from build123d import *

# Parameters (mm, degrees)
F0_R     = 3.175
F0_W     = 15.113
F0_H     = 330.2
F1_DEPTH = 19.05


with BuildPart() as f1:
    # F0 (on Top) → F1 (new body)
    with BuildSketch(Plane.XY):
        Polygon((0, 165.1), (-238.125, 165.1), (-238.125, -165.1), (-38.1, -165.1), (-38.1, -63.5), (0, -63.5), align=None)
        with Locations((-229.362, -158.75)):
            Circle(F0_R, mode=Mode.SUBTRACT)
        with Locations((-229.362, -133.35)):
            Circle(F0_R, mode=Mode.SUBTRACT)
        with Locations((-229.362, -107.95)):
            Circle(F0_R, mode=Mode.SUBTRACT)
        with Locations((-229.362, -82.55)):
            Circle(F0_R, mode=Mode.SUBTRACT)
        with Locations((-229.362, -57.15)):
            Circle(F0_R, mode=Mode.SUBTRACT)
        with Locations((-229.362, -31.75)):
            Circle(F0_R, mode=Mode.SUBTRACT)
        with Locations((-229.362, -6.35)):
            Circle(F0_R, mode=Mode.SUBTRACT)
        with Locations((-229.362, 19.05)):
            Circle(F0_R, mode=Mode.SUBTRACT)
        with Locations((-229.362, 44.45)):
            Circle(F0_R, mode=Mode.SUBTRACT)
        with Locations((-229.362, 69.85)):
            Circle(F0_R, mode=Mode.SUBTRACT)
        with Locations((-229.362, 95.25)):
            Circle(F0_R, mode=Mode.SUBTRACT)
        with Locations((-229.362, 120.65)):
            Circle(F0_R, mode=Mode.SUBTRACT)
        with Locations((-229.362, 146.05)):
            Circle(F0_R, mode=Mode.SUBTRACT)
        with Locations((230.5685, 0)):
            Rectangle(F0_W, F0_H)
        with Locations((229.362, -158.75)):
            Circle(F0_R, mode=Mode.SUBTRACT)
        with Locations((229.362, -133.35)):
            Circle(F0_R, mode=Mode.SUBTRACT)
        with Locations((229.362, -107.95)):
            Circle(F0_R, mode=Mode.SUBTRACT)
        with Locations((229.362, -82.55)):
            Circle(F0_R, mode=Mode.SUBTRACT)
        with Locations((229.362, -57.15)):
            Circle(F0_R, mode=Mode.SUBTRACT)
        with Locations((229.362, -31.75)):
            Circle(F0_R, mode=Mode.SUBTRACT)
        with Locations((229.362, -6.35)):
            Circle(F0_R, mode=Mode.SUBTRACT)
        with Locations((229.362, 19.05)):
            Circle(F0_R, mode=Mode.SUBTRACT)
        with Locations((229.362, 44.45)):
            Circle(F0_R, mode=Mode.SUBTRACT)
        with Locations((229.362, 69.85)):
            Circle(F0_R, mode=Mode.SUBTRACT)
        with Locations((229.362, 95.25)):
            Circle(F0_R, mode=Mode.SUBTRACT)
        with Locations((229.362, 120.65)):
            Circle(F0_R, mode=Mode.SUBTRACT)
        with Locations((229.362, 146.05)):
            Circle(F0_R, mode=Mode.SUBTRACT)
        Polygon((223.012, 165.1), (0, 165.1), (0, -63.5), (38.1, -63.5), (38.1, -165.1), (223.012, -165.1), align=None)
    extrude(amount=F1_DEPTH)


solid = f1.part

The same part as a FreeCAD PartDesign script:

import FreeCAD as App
import Part
import Sketcher
from FreeCAD import Vector
Q = App.Units.Quantity


def add_polygon(sketch, points):
    """Adds a closed chain of lines whose ends are joined by coincident constraints."""
    first, n = sketch.GeometryCount, len(points)
    for a, b in zip(points, points[1:] + points[:1]):
        sketch.addGeometry(Part.LineSegment(App.Vector(*a, 0), App.Vector(*b, 0)), False)
    for i in range(n):
        sketch.addConstraint(Sketcher.Constraint("Coincident", first + i, 2, first + (i + 1) % n, 1))

doc = App.newDocument("Part")
params = doc.addObject("Spreadsheet::Sheet", "Params")
for row, (alias, value) in enumerate([
    ("sketch1_diameter", "0.25 in"),
    ("sketch1_width", "3 in"),
    ("sketch1_height", "13 in"),
    ("sketch1_height2", "4 in"),
    ("sketch1_width2", "18.75 in"),
    ("pad1_length", "0.75 in"),
], start=1):
    params.set(f"A{row}", alias)
    params.set(f"B{row}", "=" + value)
    params.setAlias(f"B{row}", alias)

body = doc.addObject("PartDesign::Body", "Body")

sketch1 = body.newObject("Sketcher::SketchObject", "Sketch")
sketch1.AttachmentSupport = (doc.getObject("XY_Plane"), [""])
sketch1.MapMode = "FlatFace"
add_polygon(sketch1, [(-238.125, 165.1), (-238.125, -165.1), (-38.1, -165.1), (-38.1, -63.5), (38.1, -63.5), (38.1, -165.1), (238.125, -165.1), (238.125, 165.1)])
sketch1.addGeometry(Part.Circle(Vector(-229.362, -158.75, 0), Vector(0, 0, 1), 3.175), False)
sketch1.addGeometry(Part.Circle(Vector(-229.362, -133.35, 0), Vector(0, 0, 1), 3.175), False)
sketch1.addGeometry(Part.Circle(Vector(-229.362, -107.95, 0), Vector(0, 0, 1), 3.175), False)
sketch1.addGeometry(Part.Circle(Vector(-229.362, -82.55, 0), Vector(0, 0, 1), 3.175), False)
sketch1.addGeometry(Part.Circle(Vector(-229.362, -57.15, 0), Vector(0, 0, 1), 3.175), False)
sketch1.addGeometry(Part.Circle(Vector(-229.362, -31.75, 0), Vector(0, 0, 1), 3.175), False)
sketch1.addGeometry(Part.Circle(Vector(-229.362, -6.35, 0), Vector(0, 0, 1), 3.175), False)
sketch1.addGeometry(Part.Circle(Vector(-229.362, 19.05, 0), Vector(0, 0, 1), 3.175), False)
sketch1.addGeometry(Part.Circle(Vector(-229.362, 44.45, 0), Vector(0, 0, 1), 3.175), False)
sketch1.addGeometry(Part.Circle(Vector(-229.362, 69.85, 0), Vector(0, 0, 1), 3.175), False)
sketch1.addGeometry(Part.Circle(Vector(-229.362, 95.25, 0), Vector(0, 0, 1), 3.175), False)
sketch1.addGeometry(Part.Circle(Vector(-229.362, 120.65, 0), Vector(0, 0, 1), 3.175), False)
sketch1.addGeometry(Part.Circle(Vector(-229.362, 146.05, 0), Vector(0, 0, 1), 3.175), False)
sketch1.addGeometry(Part.Circle(Vector(229.362, 146.05, 0), Vector(0, 0, 1), 3.175), False)
sketch1.addGeometry(Part.Circle(Vector(229.362, -158.75, 0), Vector(0, 0, 1), 3.175), False)
sketch1.addGeometry(Part.Circle(Vector(229.362, -133.35, 0), Vector(0, 0, 1), 3.175), False)
sketch1.addGeometry(Part.Circle(Vector(229.362, -107.95, 0), Vector(0, 0, 1), 3.175), False)
sketch1.addGeometry(Part.Circle(Vector(229.362, -82.55, 0), Vector(0, 0, 1), 3.175), False)
sketch1.addGeometry(Part.Circle(Vector(229.362, -57.15, 0), Vector(0, 0, 1), 3.175), False)
sketch1.addGeometry(Part.Circle(Vector(229.362, -31.75, 0), Vector(0, 0, 1), 3.175), False)
sketch1.addGeometry(Part.Circle(Vector(229.362, -6.35, 0), Vector(0, 0, 1), 3.175), False)
sketch1.addGeometry(Part.Circle(Vector(229.362, 19.05, 0), Vector(0, 0, 1), 3.175), False)
sketch1.addGeometry(Part.Circle(Vector(229.362, 44.45, 0), Vector(0, 0, 1), 3.175), False)
sketch1.addGeometry(Part.Circle(Vector(229.362, 69.85, 0), Vector(0, 0, 1), 3.175), False)
sketch1.addGeometry(Part.Circle(Vector(229.362, 95.25, 0), Vector(0, 0, 1), 3.175), False)
sketch1.addGeometry(Part.Circle(Vector(229.362, 120.65, 0), Vector(0, 0, 1), 3.175), False)
sketch1.addConstraint(Sketcher.Constraint("Vertical", 0))
sketch1.addConstraint(Sketcher.Constraint("Horizontal", 1))
sketch1.addConstraint(Sketcher.Constraint("Vertical", 2))
sketch1.addConstraint(Sketcher.Constraint("Horizontal", 3))
sketch1.addConstraint(Sketcher.Constraint("Vertical", 4))
sketch1.addConstraint(Sketcher.Constraint("Horizontal", 5))
sketch1.addConstraint(Sketcher.Constraint("Vertical", 6))
sketch1.addConstraint(Sketcher.Constraint("Horizontal", 7))
sketch1.addConstraint(Sketcher.Constraint("Equal", 8, 9))
sketch1.addConstraint(Sketcher.Constraint("Equal", 9, 10))
sketch1.addConstraint(Sketcher.Constraint("Equal", 10, 11))
sketch1.addConstraint(Sketcher.Constraint("Equal", 11, 12))
sketch1.addConstraint(Sketcher.Constraint("Equal", 12, 13))
sketch1.addConstraint(Sketcher.Constraint("Equal", 13, 14))
sketch1.addConstraint(Sketcher.Constraint("Equal", 14, 15))
sketch1.addConstraint(Sketcher.Constraint("Equal", 15, 16))
sketch1.addConstraint(Sketcher.Constraint("Equal", 16, 17))
sketch1.addConstraint(Sketcher.Constraint("Equal", 17, 18))
sketch1.addConstraint(Sketcher.Constraint("Equal", 18, 19))
sketch1.addConstraint(Sketcher.Constraint("Equal", 19, 20))
sketch1.addConstraint(Sketcher.Constraint("Equal", 20, 21))
sketch1.addConstraint(Sketcher.Constraint("Equal", 21, 22))
sketch1.addConstraint(Sketcher.Constraint("Equal", 22, 23))
sketch1.addConstraint(Sketcher.Constraint("Equal", 23, 24))
sketch1.addConstraint(Sketcher.Constraint("Equal", 24, 25))
sketch1.addConstraint(Sketcher.Constraint("Equal", 25, 26))
sketch1.addConstraint(Sketcher.Constraint("Equal", 26, 27))
sketch1.addConstraint(Sketcher.Constraint("Equal", 27, 28))
sketch1.addConstraint(Sketcher.Constraint("Equal", 28, 29))
sketch1.addConstraint(Sketcher.Constraint("Equal", 29, 30))
sketch1.addConstraint(Sketcher.Constraint("Equal", 30, 31))
sketch1.addConstraint(Sketcher.Constraint("Equal", 31, 32))
sketch1.addConstraint(Sketcher.Constraint("Equal", 32, 33))
sketch1.addConstraint(Sketcher.Constraint("Symmetric", 0, 2, 6, 2, -1, 1))
sketch1.addConstraint(Sketcher.Constraint("Symmetric", 20, 3, 21, 3, -2))
sketch1.addConstraint(Sketcher.Constraint("Symmetric", 8, 3, 22, 3, -2))
sketch1.addConstraint(Sketcher.Constraint("Symmetric", 9, 3, 23, 3, -2))
sketch1.addConstraint(Sketcher.Constraint("Symmetric", 10, 3, 24, 3, -2))
sketch1.addConstraint(Sketcher.Constraint("Symmetric", 11, 3, 25, 3, -2))
sketch1.addConstraint(Sketcher.Constraint("Symmetric", 12, 3, 26, 3, -2))
sketch1.addConstraint(Sketcher.Constraint("Symmetric", 13, 3, 27, 3, -2))
sketch1.addConstraint(Sketcher.Constraint("Symmetric", 14, 3, 28, 3, -2))
sketch1.addConstraint(Sketcher.Constraint("Symmetric", 15, 3, 29, 3, -2))
sketch1.addConstraint(Sketcher.Constraint("Symmetric", 16, 3, 30, 3, -2))
sketch1.addConstraint(Sketcher.Constraint("Symmetric", 17, 3, 31, 3, -2))
sketch1.addConstraint(Sketcher.Constraint("Symmetric", 18, 3, 32, 3, -2))
sketch1.addConstraint(Sketcher.Constraint("Symmetric", 19, 3, 33, 3, -2))
sketch1.addConstraint(Sketcher.Constraint("Symmetric", 1, 2, 4, 2, -2))
sketch1.addConstraint(Sketcher.Constraint("Vertical", 8, 3, 9, 3))
sketch1.addConstraint(Sketcher.Constraint("Vertical", 9, 3, 10, 3))
sketch1.addConstraint(Sketcher.Constraint("Vertical", 10, 3, 11, 3))
sketch1.addConstraint(Sketcher.Constraint("Vertical", 11, 3, 12, 3))
sketch1.addConstraint(Sketcher.Constraint("Vertical", 12, 3, 13, 3))
sketch1.addConstraint(Sketcher.Constraint("Vertical", 13, 3, 14, 3))
sketch1.addConstraint(Sketcher.Constraint("Vertical", 14, 3, 15, 3))
sketch1.addConstraint(Sketcher.Constraint("Vertical", 15, 3, 16, 3))
sketch1.addConstraint(Sketcher.Constraint("Vertical", 16, 3, 17, 3))
sketch1.addConstraint(Sketcher.Constraint("Vertical", 17, 3, 18, 3))
sketch1.addConstraint(Sketcher.Constraint("Vertical", 18, 3, 19, 3))
sketch1.addConstraint(Sketcher.Constraint("Vertical", 19, 3, 20, 3))
sketch1.addConstraint(Sketcher.Constraint("Diameter", 8, Q("0.25 in")))
sketch1.addConstraint(Sketcher.Constraint("DistanceX", 3, 1, 3, 2, Q("3 in")))
sketch1.addConstraint(Sketcher.Constraint("DistanceY", 0, 2, 0, 1, Q("13 in")))
sketch1.addConstraint(Sketcher.Constraint("DistanceY", 2, 1, 2, 2, Q("4 in")))
sketch1.addConstraint(Sketcher.Constraint("DistanceY", 8, 3, 9, 3, Q("1 in")))
sketch1.addConstraint(Sketcher.Constraint("DistanceY", 9, 3, 10, 3, Q("1 in")))
sketch1.addConstraint(Sketcher.Constraint("DistanceY", 10, 3, 11, 3, Q("1 in")))
sketch1.addConstraint(Sketcher.Constraint("DistanceY", 11, 3, 12, 3, Q("1 in")))
sketch1.addConstraint(Sketcher.Constraint("DistanceY", 12, 3, 13, 3, Q("1 in")))
sketch1.addConstraint(Sketcher.Constraint("DistanceY", 13, 3, 14, 3, Q("1 in")))
sketch1.addConstraint(Sketcher.Constraint("DistanceY", 14, 3, 15, 3, Q("1 in")))
sketch1.addConstraint(Sketcher.Constraint("DistanceY", 15, 3, 16, 3, Q("1 in")))
sketch1.addConstraint(Sketcher.Constraint("DistanceY", 16, 3, 17, 3, Q("1 in")))
sketch1.addConstraint(Sketcher.Constraint("DistanceY", 17, 3, 18, 3, Q("1 in")))
sketch1.addConstraint(Sketcher.Constraint("DistanceY", 18, 3, 19, 3, Q("1 in")))
sketch1.addConstraint(Sketcher.Constraint("DistanceY", 19, 3, 20, 3, Q("1 in")))
sketch1.addConstraint(Sketcher.Constraint("DistanceX", 7, 2, 7, 1, Q("18.75 in")))
sketch1.addConstraint(Sketcher.Constraint("DistanceX", 8, 3, -1, 1, Q("9.03 in")))
sketch1.addConstraint(Sketcher.Constraint("DistanceY", 8, 3, -1, 1, Q("6.25 in")))
sketch1.setExpression("Constraints[68]", "Params.sketch1_diameter")
sketch1.setExpression("Constraints[69]", "Params.sketch1_width")
sketch1.setExpression("Constraints[70]", "Params.sketch1_height")
sketch1.setExpression("Constraints[71]", "Params.sketch1_height2")
sketch1.setExpression("Constraints[84]", "Params.sketch1_width2")
pad1 = body.newObject("PartDesign::Pad", "Pad")
pad1.Profile = sketch1
pad1.setExpression("Length", "Params.pad1_length")

doc.recompute()
